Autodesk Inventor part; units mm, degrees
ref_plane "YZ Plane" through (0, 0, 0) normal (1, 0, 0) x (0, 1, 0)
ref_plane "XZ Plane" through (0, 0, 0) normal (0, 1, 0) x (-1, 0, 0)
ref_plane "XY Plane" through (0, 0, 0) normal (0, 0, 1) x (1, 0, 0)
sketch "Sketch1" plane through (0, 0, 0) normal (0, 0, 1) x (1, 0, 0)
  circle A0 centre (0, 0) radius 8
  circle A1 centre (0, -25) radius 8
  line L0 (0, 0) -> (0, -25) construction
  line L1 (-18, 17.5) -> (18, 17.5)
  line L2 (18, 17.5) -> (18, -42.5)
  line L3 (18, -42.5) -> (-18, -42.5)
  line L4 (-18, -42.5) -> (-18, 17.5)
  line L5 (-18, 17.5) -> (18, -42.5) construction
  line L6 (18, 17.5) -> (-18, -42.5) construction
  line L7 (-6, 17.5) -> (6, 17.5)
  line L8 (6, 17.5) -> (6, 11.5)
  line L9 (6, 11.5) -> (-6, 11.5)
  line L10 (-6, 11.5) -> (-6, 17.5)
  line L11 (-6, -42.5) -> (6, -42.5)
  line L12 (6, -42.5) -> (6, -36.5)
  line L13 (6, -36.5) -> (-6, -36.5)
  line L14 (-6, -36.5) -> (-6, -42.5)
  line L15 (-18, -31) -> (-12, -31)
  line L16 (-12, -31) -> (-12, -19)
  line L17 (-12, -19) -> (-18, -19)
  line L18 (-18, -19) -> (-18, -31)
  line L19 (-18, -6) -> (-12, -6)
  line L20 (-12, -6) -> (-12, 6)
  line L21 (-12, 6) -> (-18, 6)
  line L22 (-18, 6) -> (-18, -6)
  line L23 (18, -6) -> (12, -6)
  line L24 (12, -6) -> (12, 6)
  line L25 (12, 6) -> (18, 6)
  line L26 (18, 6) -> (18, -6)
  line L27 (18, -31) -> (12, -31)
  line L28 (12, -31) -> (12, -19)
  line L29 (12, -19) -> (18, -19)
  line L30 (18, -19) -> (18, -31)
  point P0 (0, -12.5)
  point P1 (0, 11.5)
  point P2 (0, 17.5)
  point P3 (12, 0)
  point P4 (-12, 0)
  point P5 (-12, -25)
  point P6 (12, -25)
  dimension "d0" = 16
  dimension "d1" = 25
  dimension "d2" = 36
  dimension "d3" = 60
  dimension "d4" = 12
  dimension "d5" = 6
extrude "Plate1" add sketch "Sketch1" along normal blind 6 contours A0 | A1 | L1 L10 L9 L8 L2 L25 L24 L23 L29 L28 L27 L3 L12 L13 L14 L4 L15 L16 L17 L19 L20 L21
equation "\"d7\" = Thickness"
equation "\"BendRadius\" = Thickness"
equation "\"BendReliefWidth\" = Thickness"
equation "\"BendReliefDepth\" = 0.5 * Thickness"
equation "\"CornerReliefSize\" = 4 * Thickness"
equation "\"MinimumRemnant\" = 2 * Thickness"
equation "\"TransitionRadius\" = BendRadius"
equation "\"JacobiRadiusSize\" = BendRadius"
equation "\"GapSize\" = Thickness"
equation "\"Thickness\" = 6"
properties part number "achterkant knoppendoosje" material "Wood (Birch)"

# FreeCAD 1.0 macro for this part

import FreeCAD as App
import Part
import Sketcher
from FreeCAD import Vector
Q = App.Units.Quantity

doc = App.newDocument("Part")
body = doc.addObject("PartDesign::Body", "Body")

sketch1 = body.newObject("Sketcher::SketchObject", "Sketch")
sketch1.AttachmentSupport = (doc.getObject("XY_Plane"), [""])
sketch1.MapMode = "FlatFace"
sketch1.addGeometry(Part.LineSegment(Vector(-6, 18, 0), Vector(-18, 18, 0)), False)
sketch1.addGeometry(Part.LineSegment(Vector(-18, 18, 0), Vector(-18, 6, 0)), False)
sketch1.addGeometry(Part.LineSegment(Vector(-18, 6, 0), Vector(-12, 6, 0)), False)
sketch1.addGeometry(Part.LineSegment(Vector(-12, 6, 0), Vector(-12, -6, 0)), False)
sketch1.addGeometry(Part.LineSegment(Vector(-12, -6, 0), Vector(-18, -6, 0)), False)
sketch1.addGeometry(Part.LineSegment(Vector(-18, -6, 0), Vector(-18, -19, 0)), False)
sketch1.addGeometry(Part.LineSegment(Vector(-18, -19, 0), Vector(-12, -19, 0)), False)
sketch1.addGeometry(Part.LineSegment(Vector(-12, -19, 0), Vector(-12, -31, 0)), False)
sketch1.addGeometry(Part.LineSegment(Vector(-12, -31, 0), Vector(-18, -31, 0)), False)
sketch1.addGeometry(Part.LineSegment(Vector(-18, -31, 0), Vector(-18, -42, 0)), False)
sketch1.addGeometry(Part.LineSegment(Vector(-18, -42, 0), Vector(-6, -42, 0)), False)
sketch1.addGeometry(Part.LineSegment(Vector(-6, -42, 0), Vector(-6, -36, 0)), False)
sketch1.addGeometry(Part.LineSegment(Vector(-6, -36, 0), Vector(6, -36, 0)), False)
sketch1.addGeometry(Part.LineSegment(Vector(6, -36, 0), Vector(6, -42, 0)), False)
sketch1.addGeometry(Part.LineSegment(Vector(6, -42, 0), Vector(18, -42, 0)), False)
sketch1.addGeometry(Part.LineSegment(Vector(18, -42, 0), Vector(18, -31, 0)), False)
sketch1.addGeometry(Part.LineSegment(Vector(18, -31, 0), Vector(12, -31, 0)), False)
sketch1.addGeometry(Part.LineSegment(Vector(12, -31, 0), Vector(12, -19, 0)), False)
sketch1.addGeometry(Part.LineSegment(Vector(12, -19, 0), Vector(18, -19, 0)), False)
sketch1.addGeometry(Part.LineSegment(Vector(18, -19, 0), Vector(18, -6, 0)), False)
sketch1.addGeometry(Part.LineSegment(Vector(18, -6, 0), Vector(12, -6, 0)), False)
sketch1.addGeometry(Part.LineSegment(Vector(12, -6, 0), Vector(12, 6, 0)), False)
sketch1.addGeometry(Part.LineSegment(Vector(12, 6, 0), Vector(18, 6, 0)), False)
sketch1.addGeometry(Part.LineSegment(Vector(18, 6, 0), Vector(18, 18, 0)), False)
sketch1.addGeometry(Part.LineSegment(Vector(18, 18, 0), Vector(6, 18, 0)), False)
sketch1.addGeometry(Part.LineSegment(Vector(6, 18, 0), Vector(6, 12, 0)), False)
sketch1.addGeometry(Part.LineSegment(Vector(6, 12, 0), Vector(-6, 12, 0)), False)
sketch1.addGeometry(Part.LineSegment(Vector(-6, 12, 0), Vector(-6, 18, 0)), False)
sketch1.addConstraint(Sketcher.Constraint("Coincident", 0, 2, 1, 1))
sketch1.addConstraint(Sketcher.Constraint("Coincident", 1, 2, 2, 1))
sketch1.addConstraint(Sketcher.Constraint("Coincident", 2, 2, 3, 1))
sketch1.addConstraint(Sketcher.Constraint("Coincident", 3, 2, 4, 1))
sketch1.addConstraint(Sketcher.Constraint("Coincident", 4, 2, 5, 1))
sketch1.addConstraint(Sketcher.Constraint("Coincident", 5, 2, 6, 1))
sketch1.addConstraint(Sketcher.Constraint("Coincident", 6, 2, 7, 1))
sketch1.addConstraint(Sketcher.Constraint("Coincident", 7, 2, 8, 1))
sketch1.addConstraint(Sketcher.Constraint("Coincident", 8, 2, 9, 1))
sketch1.addConstraint(Sketcher.Constraint("Coincident", 9, 2, 10, 1))
sketch1.addConstraint(Sketcher.Constraint("Coincident", 10, 2, 11, 1))
sketch1.addConstraint(Sketcher.Constraint("Coincident", 11, 2, 12, 1))
sketch1.addConstraint(Sketcher.Constraint("Coincident", 12, 2, 13, 1))
sketch1.addConstraint(Sketcher.Constraint("Coincident", 13, 2, 14, 1))
sketch1.addConstraint(Sketcher.Constraint("Coincident", 14, 2, 15, 1))
sketch1.addConstraint(Sketcher.Constraint("Coincident", 15, 2, 16, 1))
sketch1.addConstraint(Sketcher.Constraint("Coincident", 16, 2, 17, 1))
sketch1.addConstraint(Sketcher.Constraint("Coincident", 17, 2, 18, 1))
sketch1.addConstraint(Sketcher.Constraint("Coincident", 18, 2, 19, 1))
sketch1.addConstraint(Sketcher.Constraint("Coincident", 19, 2, 20, 1))
sketch1.addConstraint(Sketcher.Constraint("Coincident", 20, 2, 21, 1))
sketch1.addConstraint(Sketcher.Constraint("Coincident", 21, 2, 22, 1))
sketch1.addConstraint(Sketcher.Constraint("Coincident", 22, 2, 23, 1))
sketch1.addConstraint(Sketcher.Constraint("Coincident", 23, 2, 24, 1))
sketch1.addConstraint(Sketcher.Constraint("Coincident", 24, 2, 25, 1))
sketch1.addConstraint(Sketcher.Constraint("Coincident", 25, 2, 26, 1))
sketch1.addConstraint(Sketcher.Constraint("Coincident", 26, 2, 27, 1))
sketch1.addConstraint(Sketcher.Constraint("Coincident", 27, 2, 0, 1))
sketch1.addConstraint(Sketcher.Constraint("Horizontal", 0))
sketch1.addConstraint(Sketcher.Constraint("Vertical", 1))
sketch1.addConstraint(Sketcher.Constraint("Horizontal", 2))
sketch1.addConstraint(Sketcher.Constraint("Vertical", 3))
sketch1.addConstraint(Sketcher.Constraint("Horizontal", 4))
sketch1.addConstraint(Sketcher.Constraint("Vertical", 5))
sketch1.addConstraint(Sketcher.Constraint("Horizontal", 6))
sketch1.addConstraint(Sketcher.Constraint("Vertical", 7))
sketch1.addConstraint(Sketcher.Constraint("Horizontal", 8))
sketch1.addConstraint(Sketcher.Constraint("Vertical", 9))
sketch1.addConstraint(Sketcher.Constraint("Horizontal", 10))
sketch1.addConstraint(Sketcher.Constraint("Vertical", 11))
sketch1.addConstraint(Sketcher.Constraint("Horizontal", 12))
sketch1.addConstraint(Sketcher.Constraint("Vertical", 13))
sketch1.addConstraint(Sketcher.Constraint("Horizontal", 14))
sketch1.addConstraint(Sketcher.Constraint("Vertical", 15))
sketch1.addConstraint(Sketcher.Constraint("Horizontal", 16))
sketch1.addConstraint(Sketcher.Constraint("Vertical", 17))
sketch1.addConstraint(Sketcher.Constraint("Horizontal", 18))
sketch1.addConstraint(Sketcher.Constraint("Vertical", 19))
sketch1.addConstraint(Sketcher.Constraint("Horizontal", 20))
sketch1.addConstraint(Sketcher.Constraint("Vertical", 21))
sketch1.addConstraint(Sketcher.Constraint("Horizontal", 22))
sketch1.addConstraint(Sketcher.Constraint("Vertical", 23))
sketch1.addConstraint(Sketcher.Constraint("Horizontal", 24))
sketch1.addConstraint(Sketcher.Constraint("Vertical", 25))
sketch1.addConstraint(Sketcher.Constraint("Horizontal", 26))
sketch1.addConstraint(Sketcher.Constraint("Vertical", 27))
sketch1.addConstraint(Sketcher.Constraint("Symmetric", 1, 2, 19, 2, -1, 1))
sketch1.addConstraint(Sketcher.Constraint("Symmetric", 3, 2, 21, 2, -1, 1))
sketch1.addConstraint(Sketcher.Constraint("Symmetric", 10, 2, 13, 2, -2))
sketch1.addConstraint(Sketcher.Constraint("Symmetric", 8, 2, 15, 2, -2))
sketch1.addConstraint(Sketcher.Constraint("Symmetric", 6, 2, 17, 2, -2))
sketch1.addConstraint(Sketcher.Constraint("Symmetric", 4, 2, 19, 2, -2))
sketch1.addConstraint(Sketcher.Constraint("Symmetric", 0, 2, 23, 2, -2))
sketch1.addConstraint(Sketcher.Constraint("Vertical", 3, 2, 6, 2))
sketch1.addConstraint(Sketcher.Constraint("Vertical", 5, 2, 8, 2))
sketch1.addConstraint(Sketcher.Constraint("Vertical", 13, 2, 24, 2))
sketch1.addConstraint(Sketcher.Constraint("Vertical", 11, 2, 26, 2))
sketch1.addConstraint(Sketcher.Constraint("Equal", 10, 12))
sketch1.addConstraint(Sketcher.Constraint("Equal", 26, 3))
sketch1.addConstraint(Sketcher.Constraint("Equal", 3, 7))
sketch1.addConstraint(Sketcher.Constraint("Equal", 1, 9))
sketch1.addConstraint(Sketcher.Constraint("Equal", 22, 11))
sketch1.addConstraint(Sketcher.Constraint("Equal", 13, 25))
sketch1.addConstraint(Sketcher.Constraint("DistanceX", 0, 2, 0, 1, Q("12 mm")))
sketch1.addConstraint(Sketcher.Constraint("DistanceX", 2, 1, 2, 2, Q("6 mm")))
sketch1.addConstraint(Sketcher.Constraint("DistanceY", 5, 2, 1, 2, Q("25 mm")))
sketch1.addConstraint(Sketcher.Constraint("DistanceY", 1, 2, 1, 1, Q("11.5 mm")))
pad1 = body.newObject("PartDesign::Pad", "Pad")
pad1.Profile = sketch1
pad1.Length = 6

doc.recompute()
